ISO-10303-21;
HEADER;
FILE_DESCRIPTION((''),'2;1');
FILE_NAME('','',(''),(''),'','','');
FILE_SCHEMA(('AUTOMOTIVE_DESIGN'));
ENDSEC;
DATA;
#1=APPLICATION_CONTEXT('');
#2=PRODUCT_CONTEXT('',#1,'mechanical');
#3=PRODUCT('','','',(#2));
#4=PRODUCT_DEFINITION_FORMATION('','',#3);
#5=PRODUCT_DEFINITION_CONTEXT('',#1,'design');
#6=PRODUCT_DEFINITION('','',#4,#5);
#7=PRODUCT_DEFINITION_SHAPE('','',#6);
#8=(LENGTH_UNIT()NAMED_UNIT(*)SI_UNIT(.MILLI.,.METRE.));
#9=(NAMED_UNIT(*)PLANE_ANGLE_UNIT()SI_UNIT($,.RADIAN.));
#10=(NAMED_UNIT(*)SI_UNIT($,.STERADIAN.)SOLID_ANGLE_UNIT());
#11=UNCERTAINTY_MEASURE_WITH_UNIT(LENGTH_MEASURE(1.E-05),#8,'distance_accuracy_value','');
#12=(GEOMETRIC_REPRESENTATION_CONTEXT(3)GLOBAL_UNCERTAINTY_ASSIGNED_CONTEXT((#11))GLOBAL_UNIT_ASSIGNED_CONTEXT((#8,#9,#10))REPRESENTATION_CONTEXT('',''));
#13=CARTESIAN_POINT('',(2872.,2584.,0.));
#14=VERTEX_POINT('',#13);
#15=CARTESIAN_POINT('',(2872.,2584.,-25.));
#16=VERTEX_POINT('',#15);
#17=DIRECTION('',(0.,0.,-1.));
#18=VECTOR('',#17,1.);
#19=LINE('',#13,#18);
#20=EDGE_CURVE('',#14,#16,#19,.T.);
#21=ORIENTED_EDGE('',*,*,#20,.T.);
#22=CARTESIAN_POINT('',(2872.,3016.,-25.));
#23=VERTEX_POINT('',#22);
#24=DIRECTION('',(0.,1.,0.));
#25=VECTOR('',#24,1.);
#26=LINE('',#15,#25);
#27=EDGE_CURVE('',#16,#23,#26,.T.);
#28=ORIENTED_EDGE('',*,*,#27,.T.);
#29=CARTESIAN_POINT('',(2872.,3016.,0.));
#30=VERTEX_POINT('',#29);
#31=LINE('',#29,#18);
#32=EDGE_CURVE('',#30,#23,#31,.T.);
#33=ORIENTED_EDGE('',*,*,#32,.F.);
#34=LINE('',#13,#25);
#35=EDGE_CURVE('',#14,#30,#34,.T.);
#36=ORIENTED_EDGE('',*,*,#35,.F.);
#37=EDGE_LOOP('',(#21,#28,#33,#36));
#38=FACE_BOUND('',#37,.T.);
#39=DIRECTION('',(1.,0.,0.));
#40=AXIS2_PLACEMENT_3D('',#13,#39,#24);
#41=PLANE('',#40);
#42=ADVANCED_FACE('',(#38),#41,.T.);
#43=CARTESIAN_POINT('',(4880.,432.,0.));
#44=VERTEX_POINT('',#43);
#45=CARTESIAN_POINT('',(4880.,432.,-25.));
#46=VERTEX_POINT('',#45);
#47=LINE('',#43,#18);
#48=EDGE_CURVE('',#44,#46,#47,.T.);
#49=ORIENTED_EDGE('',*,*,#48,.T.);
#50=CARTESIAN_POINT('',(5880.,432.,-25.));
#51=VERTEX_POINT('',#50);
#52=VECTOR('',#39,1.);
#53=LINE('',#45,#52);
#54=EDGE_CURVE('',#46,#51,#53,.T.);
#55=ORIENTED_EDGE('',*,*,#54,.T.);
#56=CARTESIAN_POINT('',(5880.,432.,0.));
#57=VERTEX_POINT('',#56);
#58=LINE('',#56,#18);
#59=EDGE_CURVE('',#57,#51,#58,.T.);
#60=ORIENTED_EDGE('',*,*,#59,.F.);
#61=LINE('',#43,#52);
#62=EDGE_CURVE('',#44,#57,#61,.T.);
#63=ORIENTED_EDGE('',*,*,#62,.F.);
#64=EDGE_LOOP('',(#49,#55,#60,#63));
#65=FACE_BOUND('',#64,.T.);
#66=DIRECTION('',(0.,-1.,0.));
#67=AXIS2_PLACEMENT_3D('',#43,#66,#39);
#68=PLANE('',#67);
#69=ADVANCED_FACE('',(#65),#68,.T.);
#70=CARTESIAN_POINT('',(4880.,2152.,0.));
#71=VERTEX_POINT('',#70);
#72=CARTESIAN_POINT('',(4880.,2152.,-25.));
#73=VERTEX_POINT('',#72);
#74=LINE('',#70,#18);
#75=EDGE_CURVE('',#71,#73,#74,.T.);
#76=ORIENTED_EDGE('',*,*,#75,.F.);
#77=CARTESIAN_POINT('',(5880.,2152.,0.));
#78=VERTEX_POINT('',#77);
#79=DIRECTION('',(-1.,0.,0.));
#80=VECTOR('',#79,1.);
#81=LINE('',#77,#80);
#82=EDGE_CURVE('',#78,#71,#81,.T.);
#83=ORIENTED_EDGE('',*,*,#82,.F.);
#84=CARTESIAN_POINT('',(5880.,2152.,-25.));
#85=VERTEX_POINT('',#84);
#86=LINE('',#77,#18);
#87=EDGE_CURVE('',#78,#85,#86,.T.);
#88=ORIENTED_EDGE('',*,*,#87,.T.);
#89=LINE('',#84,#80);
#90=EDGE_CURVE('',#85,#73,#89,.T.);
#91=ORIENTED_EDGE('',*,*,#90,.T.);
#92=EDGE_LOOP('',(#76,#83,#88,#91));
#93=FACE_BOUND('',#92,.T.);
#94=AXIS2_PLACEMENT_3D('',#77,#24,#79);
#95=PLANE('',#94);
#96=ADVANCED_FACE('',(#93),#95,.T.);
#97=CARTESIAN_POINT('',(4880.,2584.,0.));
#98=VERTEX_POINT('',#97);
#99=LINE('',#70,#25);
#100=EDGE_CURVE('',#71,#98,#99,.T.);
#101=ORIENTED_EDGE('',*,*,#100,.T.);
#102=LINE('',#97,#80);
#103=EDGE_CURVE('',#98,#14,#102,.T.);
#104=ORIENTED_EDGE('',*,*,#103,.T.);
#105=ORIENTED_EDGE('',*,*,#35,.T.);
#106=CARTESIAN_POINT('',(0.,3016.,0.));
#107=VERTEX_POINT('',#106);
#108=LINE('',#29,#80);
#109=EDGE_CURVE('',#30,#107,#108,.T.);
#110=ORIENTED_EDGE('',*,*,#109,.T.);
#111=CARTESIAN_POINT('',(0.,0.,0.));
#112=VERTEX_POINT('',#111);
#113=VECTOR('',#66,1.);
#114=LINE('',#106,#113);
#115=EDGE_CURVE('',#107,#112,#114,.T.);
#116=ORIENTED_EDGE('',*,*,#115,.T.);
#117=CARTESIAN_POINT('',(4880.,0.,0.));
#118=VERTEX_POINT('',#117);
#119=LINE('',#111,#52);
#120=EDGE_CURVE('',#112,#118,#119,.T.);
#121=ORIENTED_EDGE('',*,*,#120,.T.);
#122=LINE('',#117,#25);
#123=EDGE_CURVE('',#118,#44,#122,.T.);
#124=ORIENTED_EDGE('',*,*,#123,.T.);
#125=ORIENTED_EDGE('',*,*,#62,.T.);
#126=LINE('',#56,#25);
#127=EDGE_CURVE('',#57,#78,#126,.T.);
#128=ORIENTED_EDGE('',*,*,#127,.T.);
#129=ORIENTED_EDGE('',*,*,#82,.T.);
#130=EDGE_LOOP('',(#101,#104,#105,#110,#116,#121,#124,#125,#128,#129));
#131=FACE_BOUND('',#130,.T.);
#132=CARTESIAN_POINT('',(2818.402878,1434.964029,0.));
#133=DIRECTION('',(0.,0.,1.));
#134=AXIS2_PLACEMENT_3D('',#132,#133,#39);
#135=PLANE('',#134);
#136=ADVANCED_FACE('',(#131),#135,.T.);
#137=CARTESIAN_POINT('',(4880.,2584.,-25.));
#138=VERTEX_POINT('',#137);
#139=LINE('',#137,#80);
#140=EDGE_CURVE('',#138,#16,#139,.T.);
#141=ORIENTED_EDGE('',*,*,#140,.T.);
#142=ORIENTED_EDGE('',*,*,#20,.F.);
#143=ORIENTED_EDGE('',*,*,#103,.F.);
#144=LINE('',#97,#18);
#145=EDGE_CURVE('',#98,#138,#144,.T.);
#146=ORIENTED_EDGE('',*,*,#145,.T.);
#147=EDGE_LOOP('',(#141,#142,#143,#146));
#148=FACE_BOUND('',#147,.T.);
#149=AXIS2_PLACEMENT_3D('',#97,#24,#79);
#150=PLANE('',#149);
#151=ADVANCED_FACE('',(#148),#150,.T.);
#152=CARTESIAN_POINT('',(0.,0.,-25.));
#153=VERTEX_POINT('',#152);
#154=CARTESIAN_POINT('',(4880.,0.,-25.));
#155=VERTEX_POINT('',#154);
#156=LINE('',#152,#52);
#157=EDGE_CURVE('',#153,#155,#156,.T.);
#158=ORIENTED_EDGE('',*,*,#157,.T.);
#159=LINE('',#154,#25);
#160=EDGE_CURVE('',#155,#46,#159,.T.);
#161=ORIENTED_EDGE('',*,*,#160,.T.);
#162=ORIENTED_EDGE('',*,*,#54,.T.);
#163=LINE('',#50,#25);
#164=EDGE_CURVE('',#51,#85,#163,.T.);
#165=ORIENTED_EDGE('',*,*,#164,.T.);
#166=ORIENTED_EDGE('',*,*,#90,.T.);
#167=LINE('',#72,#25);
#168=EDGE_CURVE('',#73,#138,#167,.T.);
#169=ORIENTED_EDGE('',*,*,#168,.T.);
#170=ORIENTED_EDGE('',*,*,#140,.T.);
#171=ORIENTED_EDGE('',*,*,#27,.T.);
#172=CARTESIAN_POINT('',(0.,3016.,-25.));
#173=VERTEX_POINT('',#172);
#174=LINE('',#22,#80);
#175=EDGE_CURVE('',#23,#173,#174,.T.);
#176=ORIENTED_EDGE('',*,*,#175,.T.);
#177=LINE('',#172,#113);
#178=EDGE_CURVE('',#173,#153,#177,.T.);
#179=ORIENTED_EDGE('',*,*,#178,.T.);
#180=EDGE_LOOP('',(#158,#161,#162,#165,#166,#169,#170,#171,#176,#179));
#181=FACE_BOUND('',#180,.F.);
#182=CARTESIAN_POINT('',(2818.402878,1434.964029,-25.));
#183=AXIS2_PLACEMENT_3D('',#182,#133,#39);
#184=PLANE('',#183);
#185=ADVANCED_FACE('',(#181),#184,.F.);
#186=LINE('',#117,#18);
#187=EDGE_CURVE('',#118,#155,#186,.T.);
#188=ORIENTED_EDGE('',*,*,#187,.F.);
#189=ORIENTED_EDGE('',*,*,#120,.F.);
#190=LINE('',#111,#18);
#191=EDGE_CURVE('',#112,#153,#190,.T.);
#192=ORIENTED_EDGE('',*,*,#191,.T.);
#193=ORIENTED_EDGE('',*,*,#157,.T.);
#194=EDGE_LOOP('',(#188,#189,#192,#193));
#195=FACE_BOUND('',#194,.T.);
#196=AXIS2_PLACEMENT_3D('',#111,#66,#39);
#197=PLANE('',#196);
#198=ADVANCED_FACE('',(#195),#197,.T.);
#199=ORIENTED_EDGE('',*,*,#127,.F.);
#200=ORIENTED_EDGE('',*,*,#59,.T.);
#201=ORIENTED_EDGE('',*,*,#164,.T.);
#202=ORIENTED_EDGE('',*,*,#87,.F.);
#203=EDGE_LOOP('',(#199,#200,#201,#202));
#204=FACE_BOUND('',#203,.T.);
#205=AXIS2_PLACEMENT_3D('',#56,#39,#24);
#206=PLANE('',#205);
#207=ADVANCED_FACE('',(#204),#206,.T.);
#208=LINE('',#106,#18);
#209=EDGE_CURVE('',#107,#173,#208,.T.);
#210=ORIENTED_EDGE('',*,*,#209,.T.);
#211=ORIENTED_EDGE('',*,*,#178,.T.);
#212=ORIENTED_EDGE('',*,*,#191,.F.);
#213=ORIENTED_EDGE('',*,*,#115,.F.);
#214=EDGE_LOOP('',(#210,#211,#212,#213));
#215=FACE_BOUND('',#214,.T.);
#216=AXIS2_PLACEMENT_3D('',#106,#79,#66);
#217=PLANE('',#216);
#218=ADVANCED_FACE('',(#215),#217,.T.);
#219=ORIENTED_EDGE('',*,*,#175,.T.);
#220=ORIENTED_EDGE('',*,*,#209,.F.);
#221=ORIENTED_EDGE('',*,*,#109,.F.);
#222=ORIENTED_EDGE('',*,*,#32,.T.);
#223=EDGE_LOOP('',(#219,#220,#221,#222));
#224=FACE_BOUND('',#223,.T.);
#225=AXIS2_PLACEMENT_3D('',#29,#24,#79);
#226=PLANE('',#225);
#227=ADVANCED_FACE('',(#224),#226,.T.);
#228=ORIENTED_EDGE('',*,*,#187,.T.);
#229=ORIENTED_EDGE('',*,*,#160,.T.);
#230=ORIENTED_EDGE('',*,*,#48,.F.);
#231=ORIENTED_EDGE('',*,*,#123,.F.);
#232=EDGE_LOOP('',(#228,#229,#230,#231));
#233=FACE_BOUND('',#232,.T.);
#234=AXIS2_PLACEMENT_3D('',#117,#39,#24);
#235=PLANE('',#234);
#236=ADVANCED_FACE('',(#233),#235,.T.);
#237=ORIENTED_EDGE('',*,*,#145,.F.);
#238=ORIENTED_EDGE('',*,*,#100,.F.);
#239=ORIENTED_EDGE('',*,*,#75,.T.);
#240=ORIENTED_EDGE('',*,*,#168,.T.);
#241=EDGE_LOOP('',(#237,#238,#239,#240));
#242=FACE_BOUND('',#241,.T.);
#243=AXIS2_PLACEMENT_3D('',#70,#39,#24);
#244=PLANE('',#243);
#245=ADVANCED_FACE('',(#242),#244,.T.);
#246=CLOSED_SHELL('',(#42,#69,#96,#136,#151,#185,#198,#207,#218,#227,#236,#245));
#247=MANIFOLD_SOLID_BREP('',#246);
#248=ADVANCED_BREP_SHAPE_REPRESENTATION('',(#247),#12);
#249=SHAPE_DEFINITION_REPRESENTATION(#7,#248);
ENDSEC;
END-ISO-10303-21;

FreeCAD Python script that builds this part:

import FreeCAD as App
import Part
import Sketcher
Q = App.Units.Quantity


def add_polygon(sketch, points):
    """Adds a closed chain of lines whose ends are joined by coincident constraints."""
    first, n = sketch.GeometryCount, len(points)
    for a, b in zip(points, points[1:] + points[:1]):
        sketch.addGeometry(Part.LineSegment(App.Vector(*a, 0), App.Vector(*b, 0)), False)
    for i in range(n):
        sketch.addConstraint(Sketcher.Constraint("Coincident", first + i, 2, first + (i + 1) % n, 1))

doc = App.newDocument("Part")
body = doc.addObject("PartDesign::Body", "Body")

# Sketch on XY plane
sketch1 = body.newObject("Sketcher::SketchObject", "Sketch")
sketch1.AttachmentSupport = (doc.getObject("XY_Plane"), [""])
sketch1.MapMode = "FlatFace"
add_polygon(sketch1, [(0, 3016), (0, 0), (4880, 0), (4880, 432), (5880, 432), (5880, 2152), (4880, 2152), (4880, 2584), (2872, 2584), (2872, 3016)])  # lines 0-9
sketch1.addConstraint([
    Sketcher.Constraint("Vertical", 0),
    Sketcher.Constraint("Horizontal", 1),
    Sketcher.Constraint("Vertical", 2),
    Sketcher.Constraint("Horizontal", 3),
    Sketcher.Constraint("Vertical", 4),
    Sketcher.Constraint("Horizontal", 5),
    Sketcher.Constraint("Vertical", 6),
    Sketcher.Constraint("Horizontal", 7),
    Sketcher.Constraint("Vertical", 8),
    Sketcher.Constraint("Horizontal", 9),
    Sketcher.Constraint("Coincident", 0, 2, -1, 1),
    Sketcher.Constraint("Vertical", 2, 2, 5, 2),
    Sketcher.Constraint("Equal", 2, 6),
    Sketcher.Constraint("Equal", 6, 8),
    Sketcher.Constraint("DistanceX", 1, 1, 1, 2, Q("4880 mm")),
    Sketcher.Constraint("DistanceX", 3, 1, 3, 2, Q("1000 mm")),
    Sketcher.Constraint("DistanceX", 7, 2, 7, 1, Q("2008 mm")),
    Sketcher.Constraint("DistanceY", 0, 2, 0, 1, Q("3016 mm")),
    Sketcher.Constraint("DistanceY", 2, 1, 2, 2, Q("432 mm")),
])
pad1 = body.newObject("PartDesign::Pad", "Pad")
pad1.Profile = sketch1
pad1.Length = 25
pad1.Reversed = True

doc.recompute()
